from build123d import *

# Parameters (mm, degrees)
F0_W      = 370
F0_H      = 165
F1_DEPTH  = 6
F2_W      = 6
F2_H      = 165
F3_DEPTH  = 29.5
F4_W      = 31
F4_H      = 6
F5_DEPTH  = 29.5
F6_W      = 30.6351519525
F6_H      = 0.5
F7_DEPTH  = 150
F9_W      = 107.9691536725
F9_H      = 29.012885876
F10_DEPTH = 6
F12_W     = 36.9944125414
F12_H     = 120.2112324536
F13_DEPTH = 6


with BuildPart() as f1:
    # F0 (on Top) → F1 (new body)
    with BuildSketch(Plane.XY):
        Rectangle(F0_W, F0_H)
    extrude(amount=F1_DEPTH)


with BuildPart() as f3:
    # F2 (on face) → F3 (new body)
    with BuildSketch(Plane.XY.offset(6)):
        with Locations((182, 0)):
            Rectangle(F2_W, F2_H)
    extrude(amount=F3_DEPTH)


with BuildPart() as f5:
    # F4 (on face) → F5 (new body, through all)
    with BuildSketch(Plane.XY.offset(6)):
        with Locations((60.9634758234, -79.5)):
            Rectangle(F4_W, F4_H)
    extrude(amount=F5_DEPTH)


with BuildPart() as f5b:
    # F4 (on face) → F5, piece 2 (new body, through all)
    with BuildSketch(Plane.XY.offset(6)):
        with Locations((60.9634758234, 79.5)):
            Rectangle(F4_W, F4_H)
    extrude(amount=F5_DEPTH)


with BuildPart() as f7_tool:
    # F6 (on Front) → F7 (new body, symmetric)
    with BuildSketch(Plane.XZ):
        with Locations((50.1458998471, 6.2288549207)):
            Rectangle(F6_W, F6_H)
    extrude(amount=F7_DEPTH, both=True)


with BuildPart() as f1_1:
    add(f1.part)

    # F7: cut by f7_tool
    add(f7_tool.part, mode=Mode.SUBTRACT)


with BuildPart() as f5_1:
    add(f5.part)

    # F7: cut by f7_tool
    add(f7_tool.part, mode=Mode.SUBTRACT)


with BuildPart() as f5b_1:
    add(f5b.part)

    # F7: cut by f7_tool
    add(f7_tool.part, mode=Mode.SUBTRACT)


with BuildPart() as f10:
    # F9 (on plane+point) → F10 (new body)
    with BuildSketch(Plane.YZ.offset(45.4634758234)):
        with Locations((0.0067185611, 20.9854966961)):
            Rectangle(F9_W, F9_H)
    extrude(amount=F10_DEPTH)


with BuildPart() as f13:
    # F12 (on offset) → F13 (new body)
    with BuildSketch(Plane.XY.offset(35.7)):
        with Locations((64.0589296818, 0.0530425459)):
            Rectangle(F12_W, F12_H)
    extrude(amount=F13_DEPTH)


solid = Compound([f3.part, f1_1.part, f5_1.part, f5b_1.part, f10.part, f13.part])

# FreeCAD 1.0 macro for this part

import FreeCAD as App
import Part
import Sketcher
Q = App.Units.Quantity


def add_polygon(sketch, points):
    """Adds a closed chain of lines whose ends are joined by coincident constraints."""
    first, n = sketch.GeometryCount, len(points)
    for a, b in zip(points, points[1:] + points[:1]):
        sketch.addGeometry(Part.LineSegment(App.Vector(*a, 0), App.Vector(*b, 0)), False)
    for i in range(n):
        sketch.addConstraint(Sketcher.Constraint("Coincident", first + i, 2, first + (i + 1) % n, 1))

doc = App.newDocument("Part")
params = doc.addObject("Spreadsheet::Sheet", "Params")
for row, (alias, value) in enumerate([
    ("sketch1_width", "370 mm"),
    ("sketch1_height", "165 mm"),
    ("pad1_length", "6 mm"),
    ("sketch2_width", "6 mm"),
    ("sketch2_height", "165 mm"),
    ("pad2_length", "29.5 mm"),
    ("sketch3_width", "31 mm"),
    ("sketch3_height", "6 mm"),
    ("pad3_length", "29.5 mm"),
    ("sketch4_width", "31 mm"),
    ("sketch4_height", "6 mm"),
    ("pad4_length", "29.5 mm"),
    ("sketch5_height", "0.5 mm"),
    ("pad5_length", "300 mm"),
    ("pad6_length", "6 mm"),
    ("pad7_length", "6 mm"),
], start=1):
    params.set(f"A{row}", alias)
    params.set(f"B{row}", "=" + value)
    params.setAlias(f"B{row}", alias)

body = doc.addObject("PartDesign::Body", "Body")

# Sketch on XY plane
sketch1 = body.newObject("Sketcher::SketchObject", "Sketch")
sketch1.AttachmentSupport = (doc.getObject("XY_Plane"), [""])
sketch1.MapMode = "FlatFace"
add_polygon(sketch1, [(-185, 82), (-185, -82), (185, -82), (185, 82)])  # lines 0-3
sketch1.addConstraint(Sketcher.Constraint("Vertical", 0))
sketch1.addConstraint(Sketcher.Constraint("Horizontal", 1))
sketch1.addConstraint(Sketcher.Constraint("Vertical", 2))
sketch1.addConstraint(Sketcher.Constraint("Horizontal", 3))
sketch1.addConstraint(Sketcher.Constraint("Symmetric", 0, 2, 2, 2, -1, 1))
sketch1.addConstraint(Sketcher.Constraint("DistanceX", 1, 1, 1, 2, Q("370 mm")))
sketch1.addConstraint(Sketcher.Constraint("DistanceY", 0, 2, 0, 1, Q("165 mm")))
sketch1.setExpression("Constraints[9]", "Params.sketch1_width")
sketch1.setExpression("Constraints[10]", "Params.sketch1_height")
pad1 = body.newObject("PartDesign::Pad", "Pad")
pad1.Profile = sketch1
pad1.setExpression("Length", "Params.pad1_length")
body2 = doc.addObject("PartDesign::Body", "Body001")

# Sketch on XY plane
sketch2 = body2.newObject("Sketcher::SketchObject", "Sketch001")
sketch2.AttachmentSupport = (doc.getObject("XY_Plane001"), [""])
sketch2.MapMode = "FlatFace"
sketch2.AttachmentOffset = App.Placement(App.Vector(0, 0, 6), App.Rotation())
add_polygon(sketch2, [(179, 82), (179, -82), (185, -82), (185, 82)])  # lines 0-3
sketch2.addConstraint(Sketcher.Constraint("Vertical", 0))
sketch2.addConstraint(Sketcher.Constraint("Horizontal", 1))
sketch2.addConstraint(Sketcher.Constraint("Vertical", 2))
sketch2.addConstraint(Sketcher.Constraint("Horizontal", 3))
sketch2.addConstraint(Sketcher.Constraint("DistanceX", 1, 1, 1, 2, Q("6 mm")))
sketch2.addConstraint(Sketcher.Constraint("DistanceY", 0, 2, 0, 1, Q("165 mm")))
sketch2.addConstraint(Sketcher.Constraint("DistanceX", -1, 1, 0, 2, Q("179 mm")))
sketch2.addConstraint(Sketcher.Constraint("DistanceY", 0, 2, -1, 1, Q("82.5 mm")))
sketch2.setExpression("Constraints[8]", "Params.sketch2_width")
sketch2.setExpression("Constraints[9]", "Params.sketch2_height")
pad2 = body2.newObject("PartDesign::Pad", "Pad001")
pad2.Profile = sketch2
pad2.setExpression("Length", "Params.pad2_length")
body3 = doc.addObject("PartDesign::Body", "Body002")

# Sketch on XY plane
sketch3 = body3.newObject("Sketcher::SketchObject", "Sketch002")
sketch3.AttachmentSupport = (doc.getObject("XY_Plane002"), [""])
sketch3.MapMode = "FlatFace"
sketch3.AttachmentOffset = App.Placement(App.Vector(0, 0, 6), App.Rotation())
add_polygon(sketch3, [(45, -76), (45, -82), (76, -82), (76, -76)])  # lines 0-3
sketch3.addConstraint(Sketcher.Constraint("Vertical", 0))
sketch3.addConstraint(Sketcher.Constraint("Horizontal", 1))
sketch3.addConstraint(Sketcher.Constraint("Vertical", 2))
sketch3.addConstraint(Sketcher.Constraint("Horizontal", 3))
sketch3.addConstraint(Sketcher.Constraint("DistanceX", 1, 1, 1, 2, Q("31 mm")))
sketch3.addConstraint(Sketcher.Constraint("DistanceY", 0, 2, 0, 1, Q("6 mm")))
sketch3.addConstraint(Sketcher.Constraint("DistanceY", 0, 2, -1, 1, Q("82.5 mm")))
sketch3.addConstraint(Sketcher.Constraint("DistanceX", -1, 1, 0, 2, Q("45.463476 mm")))
sketch3.setExpression("Constraints[8]", "Params.sketch3_width")
sketch3.setExpression("Constraints[9]", "Params.sketch3_height")
pad3 = body3.newObject("PartDesign::Pad", "Pad002")
pad3.Profile = sketch3
pad3.setExpression("Length", "Params.pad3_length")
body4 = doc.addObject("PartDesign::Body", "Body003")

# Sketch on XY plane
sketch4 = body4.newObject("Sketcher::SketchObject", "Sketch003")
sketch4.AttachmentSupport = (doc.getObject("XY_Plane003"), [""])
sketch4.MapMode = "FlatFace"
sketch4.AttachmentOffset = App.Placement(App.Vector(0, 0, 6), App.Rotation())
add_polygon(sketch4, [(45, 82), (45, 76), (76, 76), (76, 82)])  # lines 0-3
sketch4.addConstraint(Sketcher.Constraint("Vertical", 0))
sketch4.addConstraint(Sketcher.Constraint("Horizontal", 1))
sketch4.addConstraint(Sketcher.Constraint("Vertical", 2))
sketch4.addConstraint(Sketcher.Constraint("Horizontal", 3))
sketch4.addConstraint(Sketcher.Constraint("DistanceX", 1, 1, 1, 2, Q("31 mm")))
sketch4.addConstraint(Sketcher.Constraint("DistanceY", 0, 2, 0, 1, Q("6 mm")))
sketch4.addConstraint(Sketcher.Constraint("DistanceY", -1, 1, 0, 2, Q("76.5 mm")))
sketch4.addConstraint(Sketcher.Constraint("DistanceX", -1, 1, 0, 2, Q("45.463476 mm")))
sketch4.setExpression("Constraints[8]", "Params.sketch4_width")
sketch4.setExpression("Constraints[9]", "Params.sketch4_height")
pad4 = body4.newObject("PartDesign::Pad", "Pad003")
pad4.Profile = sketch4
pad4.setExpression("Length", "Params.pad4_length")
body5 = doc.addObject("PartDesign::Body", "Body004")

# Sketch on XZ plane
sketch5 = body5.newObject("Sketcher::SketchObject", "Sketch004")
sketch5.AttachmentSupport = (doc.getObject("XZ_Plane004"), [""])
sketch5.MapMode = "FlatFace"
add_polygon(sketch5, [(34.8, 6.5), (34.8, 6), (65.5, 6), (65.5, 6.5)])  # lines 0-3
sketch5.addConstraint(Sketcher.Constraint("Vertical", 0))
sketch5.addConstraint(Sketcher.Constraint("Horizontal", 1))
sketch5.addConstraint(Sketcher.Constraint("Vertical", 2))
sketch5.addConstraint(Sketcher.Constraint("Horizontal", 3))
sketch5.addConstraint(Sketcher.Constraint("DistanceY", 0, 2, 0, 1, Q("0.5 mm")))
sketch5.addConstraint(Sketcher.Constraint("DistanceX", 1, 1, 1, 2, Q("30.635152 mm")))
sketch5.addConstraint(Sketcher.Constraint("DistanceX", -1, 1, 0, 2, Q("34.828324 mm")))
sketch5.addConstraint(Sketcher.Constraint("DistanceY", -1, 1, 0, 2, Q("5.978855 mm")))
sketch5.setExpression("Constraints[8]", "Params.sketch5_height")
pad5 = body5.newObject("PartDesign::Pad", "Pad004")
pad5.Profile = sketch5
pad5.setExpression("Length", "Params.pad5_length")
pad5.Midplane = True
doc.recompute()

body6 = doc.addObject("PartDesign::Body", "Body005")
body6.BaseFeature = body5
boolean = body.newObject("PartDesign::Boolean", "Boolean")
boolean.Type = "Cut"
boolean.addObjects([body6])
doc.recompute()

body7 = doc.addObject("PartDesign::Body", "Body006")
body7.BaseFeature = body5
boolean2 = body3.newObject("PartDesign::Boolean", "Boolean001")
boolean2.Type = "Cut"
boolean2.addObjects([body7])
doc.recompute()

boolean3 = body4.newObject("PartDesign::Boolean", "Boolean002")
boolean3.Type = "Cut"
boolean3.addObjects([body5])
body8 = doc.addObject("PartDesign::Body", "Body007")

# Sketch on YZ plane
sketch6 = body8.newObject("Sketcher::SketchObject", "Sketch005")
sketch6.AttachmentSupport = (doc.getObject("YZ_Plane007"), [""])
sketch6.MapMode = "FlatFace"
sketch6.AttachmentOffset = App.Placement(App.Vector(0, 0, 45.463476), App.Rotation())
add_polygon(sketch6, [(-54, 35), (-54, 6), (54, 6), (54, 35)])  # lines 0-3
sketch6.addConstraint(Sketcher.Constraint("Vertical", 0))
sketch6.addConstraint(Sketcher.Constraint("Horizontal", 1))
sketch6.addConstraint(Sketcher.Constraint("Vertical", 2))
sketch6.addConstraint(Sketcher.Constraint("Horizontal", 3))
sketch6.addConstraint(Sketcher.Constraint("DistanceX", 1, 1, 1, 2, Q("107.969154 mm")))
sketch6.addConstraint(Sketcher.Constraint("DistanceY", 0, 2, 0, 1, Q("29.012886 mm")))
sketch6.addConstraint(Sketcher.Constraint("DistanceX", 0, 2, -1, 1, Q("53.977858 mm")))
sketch6.addConstraint(Sketcher.Constraint("DistanceY", -1, 1, 2, 2, Q("35.49194 mm")))
pad6 = body8.newObject("PartDesign::Pad", "Pad005")
pad6.Profile = sketch6
pad6.setExpression("Length", "Params.pad6_length")
body9 = doc.addObject("PartDesign::Body", "Body008")

# Sketch on XY plane
sketch7 = body9.newObject("Sketcher::SketchObject", "Sketch006")
sketch7.AttachmentSupport = (doc.getObject("XY_Plane008"), [""])
sketch7.MapMode = "FlatFace"
sketch7.AttachmentOffset = App.Placement(App.Vector(0, 0, 35.7), App.Rotation())
add_polygon(sketch7, [(46, 60), (46, -60), (83, -60), (83, 60)])  # lines 0-3
sketch7.addConstraint(Sketcher.Constraint("Vertical", 0))
sketch7.addConstraint(Sketcher.Constraint("Horizontal", 1))
sketch7.addConstraint(Sketcher.Constraint("Vertical", 2))
sketch7.addConstraint(Sketcher.Constraint("Horizontal", 3))
sketch7.addConstraint(Sketcher.Constraint("DistanceX", 1, 1, 1, 2, Q("36.994413 mm")))
sketch7.addConstraint(Sketcher.Constraint("DistanceY", 0, 2, 0, 1, Q("120.211232 mm")))
sketch7.addConstraint(Sketcher.Constraint("DistanceY", -1, 1, 2, 2, Q("60.158659 mm")))
sketch7.addConstraint(Sketcher.Constraint("DistanceX", -1, 1, 0, 2, Q("45.561723 mm")))
pad7 = body9.newObject("PartDesign::Pad", "Pad006")
pad7.Profile = sketch7
pad7.setExpression("Length", "Params.pad7_length")

doc.recompute()
